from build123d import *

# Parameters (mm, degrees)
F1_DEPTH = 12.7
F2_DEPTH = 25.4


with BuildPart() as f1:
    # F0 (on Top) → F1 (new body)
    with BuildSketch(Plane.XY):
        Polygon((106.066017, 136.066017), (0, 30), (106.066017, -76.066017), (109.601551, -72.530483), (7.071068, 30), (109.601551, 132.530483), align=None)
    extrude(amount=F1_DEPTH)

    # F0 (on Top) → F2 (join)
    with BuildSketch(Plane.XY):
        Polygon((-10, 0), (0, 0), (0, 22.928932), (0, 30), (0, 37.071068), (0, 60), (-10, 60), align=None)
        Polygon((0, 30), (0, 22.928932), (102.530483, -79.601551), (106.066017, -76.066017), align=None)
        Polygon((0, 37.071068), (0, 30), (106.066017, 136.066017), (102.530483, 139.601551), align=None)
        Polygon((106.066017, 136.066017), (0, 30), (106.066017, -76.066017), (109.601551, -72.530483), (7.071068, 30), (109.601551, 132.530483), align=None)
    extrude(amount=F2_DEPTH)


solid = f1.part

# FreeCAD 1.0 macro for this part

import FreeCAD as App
import Part
import Sketcher

V = App.Vector
Q = App.Units.Quantity


def add_polygon(sketch, points):
    """Adds a closed chain of lines whose ends are joined by coincident constraints."""
    first, n = sketch.GeometryCount, len(points)
    for a, b in zip(points, points[1:] + points[:1]):
        sketch.addGeometry(Part.LineSegment(App.Vector(*a, 0), App.Vector(*b, 0)), False)
    for i in range(n):
        sketch.addConstraint(Sketcher.Constraint("Coincident", first + i, 2, first + (i + 1) % n, 1))

doc = App.newDocument("Part")
body = doc.addObject("PartDesign::Body", "Body")

# Sketch on XY plane
sketch1 = doc.addObject("Sketcher::SketchObject", "Sketch")
body.addObject(sketch1)
sketch1.AttachmentSupport = (doc.XY_Plane, [""])
sketch1.MapMode = "FlatFace"
add_polygon(sketch1, [(106, 136), (0, 30), (106, -76), (110, -73), (7, 30), (110, 133)])  # lines 0-5
sketch1.addConstraint([
    Sketcher.Constraint("PointOnObject", 0, 2, -2),
    Sketcher.Constraint("Perpendicular", 0, 1),
    Sketcher.Constraint("Perpendicular", 1, 2),
    Sketcher.Constraint("Perpendicular", 2, 3),
    Sketcher.Constraint("Perpendicular", 3, 4),
    Sketcher.Constraint("Perpendicular", 4, 5),
    Sketcher.Constraint("Horizontal", 0, 2, 3, 2),
    Sketcher.Constraint("Vertical", 2, 2, 4, 2),
    Sketcher.Constraint("Vertical", 1, 2, 5, 2),
    Sketcher.Constraint("Distance", 0, Q("150 mm")),
    Sketcher.Constraint("Distance", 2, Q("5 mm")),
    Sketcher.Constraint("DistanceY", -1, 1, 0, 2, Q("30 mm")),
])
pad1 = doc.addObject("PartDesign::Pad", "Pad")
body.addObject(pad1)
pad1.Profile = sketch1
pad1.Length = 12.7

# Sketch on XY plane
sketch2 = doc.addObject("Sketcher::SketchObject", "Sketch001")
body.addObject(sketch2)
sketch2.AttachmentSupport = (doc.XY_Plane, [""])
sketch2.MapMode = "FlatFace"
add_polygon(sketch2, [(-10, 0), (0, 0), (0, 23), (103, -80), (110, -73), (7, 30), (110, 133), (103, 140), (0, 37), (0, 60), (-10, 60)])  # lines 0-10
sketch2.addConstraint([
    Sketcher.Constraint("Horizontal", 0),
    Sketcher.Constraint("Vertical", 1),
    Sketcher.Constraint("Vertical", 8),
    Sketcher.Constraint("Horizontal", 9),
    Sketcher.Constraint("Vertical", 10),
    Sketcher.Constraint("Coincident", 0, 2, -1, 1),
    Sketcher.Constraint("PointOnObject", 7, 2, -2),
    Sketcher.Constraint("Perpendicular", 2, 3),
    Sketcher.Constraint("Perpendicular", 3, 4),
    Sketcher.Constraint("Perpendicular", 4, 5),
    Sketcher.Constraint("Perpendicular", 5, 6),
    Sketcher.Constraint("Perpendicular", 6, 7),
    Sketcher.Constraint("Vertical", 3, 2, 5, 2),
    Sketcher.Constraint("Vertical", 2, 2, 6, 2),
    Sketcher.Constraint("Equal", 1, 8),
    Sketcher.Constraint("Equal", 2, 4),
    Sketcher.Constraint("Equal", 4, 5),
    Sketcher.Constraint("DistanceX", 0, 1, 0, 2, Q("10 mm")),
    Sketcher.Constraint("DistanceY", 10, 2, 10, 1, Q("60 mm")),
    Sketcher.Constraint("Distance", 2, Q("145 mm")),
    Sketcher.Constraint("Distance", 3, Q("10 mm")),
])
pad2 = doc.addObject("PartDesign::Pad", "Pad001")
body.addObject(pad2)
pad2.Profile = sketch2
pad2.Length = 25.4

doc.recompute()
